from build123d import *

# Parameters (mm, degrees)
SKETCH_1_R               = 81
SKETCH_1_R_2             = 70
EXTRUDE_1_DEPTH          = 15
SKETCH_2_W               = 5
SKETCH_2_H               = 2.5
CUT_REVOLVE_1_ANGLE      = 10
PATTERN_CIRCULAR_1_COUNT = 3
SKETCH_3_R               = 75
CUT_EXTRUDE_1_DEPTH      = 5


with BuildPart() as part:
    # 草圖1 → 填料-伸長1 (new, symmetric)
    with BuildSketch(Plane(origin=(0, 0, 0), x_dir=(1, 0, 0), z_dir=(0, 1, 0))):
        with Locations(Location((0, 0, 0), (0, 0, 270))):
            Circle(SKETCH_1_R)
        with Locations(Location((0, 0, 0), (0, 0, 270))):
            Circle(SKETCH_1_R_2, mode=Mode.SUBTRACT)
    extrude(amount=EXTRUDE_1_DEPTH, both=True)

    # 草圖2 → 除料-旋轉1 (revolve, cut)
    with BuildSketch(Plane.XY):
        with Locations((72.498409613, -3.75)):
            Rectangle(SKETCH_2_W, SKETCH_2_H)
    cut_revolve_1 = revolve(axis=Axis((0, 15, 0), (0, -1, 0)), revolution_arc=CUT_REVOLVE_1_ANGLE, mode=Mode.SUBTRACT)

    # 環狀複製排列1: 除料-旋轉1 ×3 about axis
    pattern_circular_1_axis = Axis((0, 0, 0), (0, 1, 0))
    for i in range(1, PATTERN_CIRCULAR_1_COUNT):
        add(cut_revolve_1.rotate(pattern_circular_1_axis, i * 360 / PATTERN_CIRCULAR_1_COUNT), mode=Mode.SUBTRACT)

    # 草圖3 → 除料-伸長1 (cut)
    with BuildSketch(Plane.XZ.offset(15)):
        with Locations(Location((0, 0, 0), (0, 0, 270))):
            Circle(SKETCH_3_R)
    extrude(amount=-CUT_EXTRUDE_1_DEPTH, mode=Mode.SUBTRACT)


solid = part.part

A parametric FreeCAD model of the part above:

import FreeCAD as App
import Part
import Sketcher

V = App.Vector
Q = App.Units.Quantity

doc = App.newDocument("Part")
params = doc.addObject("Spreadsheet::Sheet", "Params")
for row, (alias, value) in enumerate([
    ("sketch1_diameter", "162 mm"),
    ("sketch1_diameter2", "140 mm"),
    ("pad1_length", "30 mm"),
    ("sketch2_width", "5 mm"),
    ("sketch2_height", "2.5 mm"),
    ("groove_angle", "10 deg"),
    ("sketch3_diameter", "150 mm"),
    ("pocket1_length", "5 mm"),
], start=1):
    params.set(f"A{row}", alias)
    params.set(f"B{row}", "=" + value)
    params.setAlias(f"B{row}", alias)

body = doc.addObject("PartDesign::Body", "Body")

sketch1 = body.newObject("Sketcher::SketchObject", "Sketch")
sketch1.AttachmentSupport = (doc.getObject("XZ_Plane"), [""])
sketch1.MapMode = "FlatFace"
sketch1.addGeometry([
    Part.Circle(V(0, 0, 0), V(0, 0, 1), 81),
    Part.Circle(V(0, 0, 0), V(0, 0, 1), 70),
], False)
sketch1.addConstraint([
    Sketcher.Constraint("Coincident", 0, 3, -1, 1),
    Sketcher.Constraint("Coincident", 1, 3, -1, 1),
    Sketcher.Constraint("Diameter", 0, Q("162 mm")),
    Sketcher.Constraint("Diameter", 1, Q("140 mm")),
])
sketch1.setExpression("Constraints[2]", "Params.sketch1_diameter")
sketch1.setExpression("Constraints[3]", "Params.sketch1_diameter2")
pad1 = body.newObject("PartDesign::Pad", "Pad")
pad1.Profile = sketch1
pad1.setExpression("Length", "Params.pad1_length")
pad1.Midplane = True

sketch2 = body.newObject("Sketcher::SketchObject", "Sketch001")
sketch2.AttachmentSupport = (doc.getObject("XY_Plane"), [""])
sketch2.MapMode = "FlatFace"
sketch2.addGeometry([
    Part.LineSegment(V(69.99841, -2.5, 0), V(69.99841, -5, 0)),
    Part.LineSegment(V(69.99841, -5, 0), V(74.99841, -5, 0)),
    Part.LineSegment(V(74.99841, -5, 0), V(74.99841, -2.5, 0)),
    Part.LineSegment(V(74.99841, -2.5, 0), V(69.99841, -2.5, 0)),
], False)
sketch2.addConstraint([
    Sketcher.Constraint("Coincident", 0, 2, 1, 1),
    Sketcher.Constraint("Coincident", 1, 2, 2, 1),
    Sketcher.Constraint("Coincident", 2, 2, 3, 1),
    Sketcher.Constraint("Coincident", 3, 2, 0, 1),
    Sketcher.Constraint("Vertical", 0),
    Sketcher.Constraint("Horizontal", 1),
    Sketcher.Constraint("Vertical", 2),
    Sketcher.Constraint("Horizontal", 3),
    Sketcher.Constraint("DistanceX", 1, 1, 1, 2, Q("5 mm")),
    Sketcher.Constraint("DistanceY", 0, 2, 0, 1, Q("2.5 mm")),
    Sketcher.Constraint("DistanceY", 0, 2, -1, 1, Q("5 mm")),
    Sketcher.Constraint("DistanceX", -1, 1, 0, 2, Q("69.99841 mm")),
])
sketch2.setExpression("Constraints[8]", "Params.sketch2_width")
sketch2.setExpression("Constraints[9]", "Params.sketch2_height")
groove = body.newObject("PartDesign::Groove", "Groove")
groove.Profile = sketch2
groove.ReferenceAxis = (sketch2, ["V_Axis"])
groove.setExpression("Angle", "Params.groove_angle")
groove.Reversed = True
doc.recompute()

polarpattern = body.newObject("PartDesign::PolarPattern", "PolarPattern")
polarpattern.Originals = [groove]
polarpattern.Axis = (doc.getObject("Y_Axis"), [""])
polarpattern.Angle = 360
polarpattern.Occurrences = 3
body.Tip = polarpattern

sketch3 = body.newObject("Sketcher::SketchObject", "Sketch002")
sketch3.AttachmentSupport = (doc.getObject("XZ_Plane"), [""])
sketch3.MapMode = "FlatFace"
sketch3.AttachmentOffset = App.Placement(V(0, 0, 15), App.Rotation())
sketch3.addGeometry(Part.Circle(V(0, 0, 0), V(0, 0, 1), 75), False)
sketch3.addConstraint([
    Sketcher.Constraint("Coincident", 0, 3, -1, 1),
    Sketcher.Constraint("Diameter", 0, Q("150 mm")),
])
sketch3.setExpression("Constraints[1]", "Params.sketch3_diameter")
pocket1 = body.newObject("PartDesign::Pocket", "Pocket")
pocket1.Profile = sketch3
pocket1.setExpression("Length", "Params.pocket1_length")

doc.recompute()
